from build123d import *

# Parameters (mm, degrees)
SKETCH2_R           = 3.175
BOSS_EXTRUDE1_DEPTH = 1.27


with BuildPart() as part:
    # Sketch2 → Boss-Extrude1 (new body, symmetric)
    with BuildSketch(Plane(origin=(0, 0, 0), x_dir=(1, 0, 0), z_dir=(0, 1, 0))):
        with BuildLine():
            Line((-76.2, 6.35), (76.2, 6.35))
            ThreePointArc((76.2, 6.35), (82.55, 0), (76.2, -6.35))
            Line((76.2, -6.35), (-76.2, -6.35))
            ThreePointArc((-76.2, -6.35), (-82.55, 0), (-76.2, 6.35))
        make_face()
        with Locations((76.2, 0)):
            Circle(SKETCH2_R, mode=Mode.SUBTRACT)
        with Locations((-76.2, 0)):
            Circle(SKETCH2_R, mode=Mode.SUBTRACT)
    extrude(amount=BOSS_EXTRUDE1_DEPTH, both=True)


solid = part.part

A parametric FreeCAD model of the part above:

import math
import FreeCAD as App
import Part
import Sketcher

V = App.Vector
Q = App.Units.Quantity

doc = App.newDocument("Part")
body = doc.addObject("PartDesign::Body", "Body")

sketch1 = body.newObject("Sketcher::SketchObject", "Sketch")
sketch1.AttachmentSupport = (doc.getObject("XZ_Plane"), [""])
sketch1.MapMode = "FlatFace"
sketch1.addGeometry([
    Part.LineSegment(V(76.2, -6.35, 0), V(-76.2, -6.35, 0)),
    Part.ArcOfCircle(Part.Circle(V(-76.2, 0, 0), V(0, 0, 1), 6.35), math.radians(90), math.radians(270)),
    Part.LineSegment(V(-76.2, 6.35, 0), V(76.2, 6.35, 0)),
    Part.ArcOfCircle(Part.Circle(V(76.2, 0, 0), V(0, 0, 1), 6.35), math.radians(-90), math.radians(90)),
    Part.Circle(V(76.2, 0, 0), V(0, 0, 1), 3.175),
    Part.Circle(V(-76.2, 0, 0), V(0, 0, 1), 3.175),
], False)
sketch1.addConstraint([
    Sketcher.Constraint("Tangent", 0, 2, 1, 2),
    Sketcher.Constraint("Tangent", 1, 1, 2, 1),
    Sketcher.Constraint("Tangent", 2, 2, 3, 2),
    Sketcher.Constraint("Tangent", 3, 1, 0, 1),
    Sketcher.Constraint("Horizontal", 0),
    Sketcher.Constraint("Horizontal", 2),
    Sketcher.Constraint("Coincident", 4, 3, 3, 3),
    Sketcher.Constraint("Coincident", 5, 3, 1, 3),
    Sketcher.Constraint("Equal", 4, 5),
    Sketcher.Constraint("Symmetric", 1, 3, 3, 3, -1, 1),
    Sketcher.Constraint("Diameter", 4, Q("0.25 in")),
    Sketcher.Constraint("DistanceX", 0, 2, 0, 1, Q("6 in")),
    Sketcher.Constraint("Radius", 1, Q("0.25 in")),
])
pad1 = body.newObject("PartDesign::Pad", "Pad")
pad1.Profile = sketch1
pad1.Length = Q("0.1 in")
pad1.Midplane = True

doc.recompute()
